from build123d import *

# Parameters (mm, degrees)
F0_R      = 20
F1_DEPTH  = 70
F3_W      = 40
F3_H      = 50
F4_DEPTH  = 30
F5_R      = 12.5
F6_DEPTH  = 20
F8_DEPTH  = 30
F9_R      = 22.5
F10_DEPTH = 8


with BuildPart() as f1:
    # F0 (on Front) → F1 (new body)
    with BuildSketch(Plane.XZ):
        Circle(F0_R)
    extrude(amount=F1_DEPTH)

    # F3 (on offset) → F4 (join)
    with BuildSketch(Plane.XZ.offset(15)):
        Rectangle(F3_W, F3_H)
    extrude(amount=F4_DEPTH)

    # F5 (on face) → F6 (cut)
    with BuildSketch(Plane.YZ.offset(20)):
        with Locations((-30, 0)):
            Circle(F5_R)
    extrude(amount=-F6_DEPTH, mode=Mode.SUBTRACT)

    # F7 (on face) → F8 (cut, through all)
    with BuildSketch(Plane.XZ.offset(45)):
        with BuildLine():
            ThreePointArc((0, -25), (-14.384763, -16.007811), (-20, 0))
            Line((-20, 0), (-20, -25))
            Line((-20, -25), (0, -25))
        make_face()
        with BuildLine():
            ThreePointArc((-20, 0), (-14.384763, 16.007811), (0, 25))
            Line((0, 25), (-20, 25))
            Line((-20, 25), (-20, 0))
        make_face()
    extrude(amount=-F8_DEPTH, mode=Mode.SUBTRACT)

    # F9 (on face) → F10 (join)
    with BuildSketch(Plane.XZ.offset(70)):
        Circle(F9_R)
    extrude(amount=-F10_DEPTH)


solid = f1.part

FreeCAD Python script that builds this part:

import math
import FreeCAD as App
import Part
import Sketcher

V = App.Vector

doc = App.newDocument("Part")
body = doc.addObject("PartDesign::Body", "Body")

sketch1 = body.newObject("Sketcher::SketchObject", "Sketch")
sketch1.AttachmentSupport = (doc.getObject("XZ_Plane"), [""])
sketch1.MapMode = "FlatFace"
sketch1.addGeometry(Part.Circle(V(0, 0, 0), V(0, 0, 1), 20), False)
sketch1.addConstraint(Sketcher.Constraint("Coincident", 0, 3, -1, 1))
sketch1.addConstraint(Sketcher.Constraint("Diameter", 0, 40.0))
pad1 = body.newObject("PartDesign::Pad", "Pad")
pad1.Profile = sketch1
pad1.Length = 70

sketch2 = body.newObject("Sketcher::SketchObject", "Sketch001")
sketch2.AttachmentSupport = (doc.getObject("XZ_Plane"), [""])
sketch2.MapMode = "FlatFace"
sketch2.AttachmentOffset = App.Placement(V(0, 0, 15), App.Rotation())
sketch2.addGeometry(Part.LineSegment(V(-20, 25, 0), V(-20, -25, 0)), False)
sketch2.addGeometry(Part.LineSegment(V(-20, -25, 0), V(20, -25, 0)), False)
sketch2.addGeometry(Part.LineSegment(V(20, -25, 0), V(20, 25, 0)), False)
sketch2.addGeometry(Part.LineSegment(V(20, 25, 0), V(-20, 25, 0)), False)
sketch2.addConstraint(Sketcher.Constraint("Coincident", 0, 2, 1, 1))
sketch2.addConstraint(Sketcher.Constraint("Coincident", 1, 2, 2, 1))
sketch2.addConstraint(Sketcher.Constraint("Coincident", 2, 2, 3, 1))
sketch2.addConstraint(Sketcher.Constraint("Coincident", 3, 2, 0, 1))
sketch2.addConstraint(Sketcher.Constraint("Vertical", 0))
sketch2.addConstraint(Sketcher.Constraint("Horizontal", 1))
sketch2.addConstraint(Sketcher.Constraint("Vertical", 2))
sketch2.addConstraint(Sketcher.Constraint("Horizontal", 3))
sketch2.addConstraint(Sketcher.Constraint("Symmetric", 0, 2, 2, 2, -1, 1))
sketch2.addConstraint(Sketcher.Constraint("DistanceX", 1, 1, 1, 2, 40.0))
sketch2.addConstraint(Sketcher.Constraint("DistanceY", 0, 2, 0, 1, 50.0))
pad2 = body.newObject("PartDesign::Pad", "Pad001")
pad2.Profile = sketch2
pad2.Length = 30

sketch3 = body.newObject("Sketcher::SketchObject", "Sketch002")
sketch3.AttachmentSupport = (doc.getObject("YZ_Plane"), [""])
sketch3.MapMode = "FlatFace"
sketch3.AttachmentOffset = App.Placement(V(0, 0, 20), App.Rotation())
sketch3.addGeometry(Part.Circle(V(-30, 0, 0), V(0, 0, 1), 12), False)
sketch3.addConstraint(Sketcher.Constraint("PointOnObject", 0, 3, -1))
sketch3.addConstraint(Sketcher.Constraint("Diameter", 0, 25.0))
sketch3.addConstraint(Sketcher.Constraint("DistanceX", 0, 3, -1, 1, 30.0))
pocket1 = body.newObject("PartDesign::Pocket", "Pocket")
pocket1.Profile = sketch3
pocket1.Length = 20

sketch4 = body.newObject("Sketcher::SketchObject", "Sketch003")
sketch4.AttachmentSupport = (doc.getObject("XZ_Plane"), [""])
sketch4.MapMode = "FlatFace"
sketch4.AttachmentOffset = App.Placement(V(0, 0, 45), App.Rotation())
sketch4.addGeometry(Part.ArcOfCircle(Part.Circle(V(6, 0, 0), V(0, 0, 1), 26), math.radians(180), math.radians(257)), False)
sketch4.addGeometry(Part.LineSegment(V(-20, 0, 0), V(-20, -25, 0)), False)
sketch4.addGeometry(Part.LineSegment(V(-20, -25, 0), V(0, -25, 0)), False)
sketch4.addGeometry(Part.ArcOfCircle(Part.Circle(V(6, 0, 0), V(0, 0, 1), 26), math.radians(103), math.radians(180)), False)
sketch4.addGeometry(Part.LineSegment(V(0, 25, 0), V(-20, 25, 0)), False)
sketch4.addGeometry(Part.LineSegment(V(-20, 25, 0), V(-20, 0, 0)), False)
sketch4.addConstraint(Sketcher.Constraint("Tangent", 0, 1, 1, 1))
sketch4.addConstraint(Sketcher.Constraint("Coincident", 1, 2, 2, 1))
sketch4.addConstraint(Sketcher.Constraint("Coincident", 2, 2, 0, 2))
sketch4.addConstraint(Sketcher.Constraint("Coincident", 3, 1, 4, 1))
sketch4.addConstraint(Sketcher.Constraint("Coincident", 4, 2, 5, 1))
sketch4.addConstraint(Sketcher.Constraint("Tangent", 5, 2, 3, 2))
sketch4.addConstraint(Sketcher.Constraint("Vertical", 1))
sketch4.addConstraint(Sketcher.Constraint("Horizontal", 2))
sketch4.addConstraint(Sketcher.Constraint("Horizontal", 4))
sketch4.addConstraint(Sketcher.Constraint("Vertical", 5))
sketch4.addConstraint(Sketcher.Constraint("Coincident", 3, 3, 0, 3))
sketch4.addConstraint(Sketcher.Constraint("Equal", 0, 3))
sketch4.addConstraint(Sketcher.Constraint("Symmetric", 2, 2, 3, 1, -1, 1))
sketch4.addConstraint(Sketcher.Constraint("PointOnObject", 0, 3, -1))
sketch4.addConstraint(Sketcher.Constraint("DistanceX", 2, 1, 2, 2, 20.0))
sketch4.addConstraint(Sketcher.Constraint("DistanceY", 1, 2, 1, 1, 25.0))
pocket2 = body.newObject("PartDesign::Pocket", "Pocket001")
pocket2.Profile = sketch4
pocket2.Type = "ThroughAll"

sketch5 = body.newObject("Sketcher::SketchObject", "Sketch004")
sketch5.AttachmentSupport = (doc.getObject("XZ_Plane"), [""])
sketch5.MapMode = "FlatFace"
sketch5.AttachmentOffset = App.Placement(V(0, 0, 70), App.Rotation())
sketch5.addGeometry(Part.Circle(V(0, 0, 0), V(0, 0, 1), 22), False)
sketch5.addConstraint(Sketcher.Constraint("Coincident", 0, 3, -1, 1))
sketch5.addConstraint(Sketcher.Constraint("Diameter", 0, 45.0))
pad3 = body.newObject("PartDesign::Pad", "Pad002")
pad3.Profile = sketch5
pad3.Length = 8
pad3.Reversed = True

doc.recompute()
